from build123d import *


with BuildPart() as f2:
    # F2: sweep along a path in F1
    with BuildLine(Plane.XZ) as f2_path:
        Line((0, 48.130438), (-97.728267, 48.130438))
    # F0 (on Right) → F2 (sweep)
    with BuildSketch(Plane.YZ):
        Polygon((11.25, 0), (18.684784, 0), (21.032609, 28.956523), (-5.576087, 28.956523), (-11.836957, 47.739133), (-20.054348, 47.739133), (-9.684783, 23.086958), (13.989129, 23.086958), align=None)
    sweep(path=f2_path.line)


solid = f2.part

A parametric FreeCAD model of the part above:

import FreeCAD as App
import Part
import Sketcher

V = App.Vector

doc = App.newDocument("Part")
body = doc.addObject("PartDesign::Body", "Body")

sketch1 = body.newObject("Sketcher::SketchObject", "Sketch")
sketch1.AttachmentSupport = (doc.getObject("YZ_Plane"), [""])
sketch1.MapMode = "FlatFace"
sketch1.addGeometry(Part.LineSegment(V(11, 0, 0), V(19, 0, 0)), False)
sketch1.addGeometry(Part.LineSegment(V(19, 0, 0), V(21, 29, 0)), False)
sketch1.addGeometry(Part.LineSegment(V(21, 29, 0), V(-6, 29, 0)), False)
sketch1.addGeometry(Part.LineSegment(V(-6, 29, 0), V(-12, 48, 0)), False)
sketch1.addGeometry(Part.LineSegment(V(-12, 48, 0), V(-20, 48, 0)), False)
sketch1.addGeometry(Part.LineSegment(V(-20, 48, 0), V(-10, 23, 0)), False)
sketch1.addGeometry(Part.LineSegment(V(-10, 23, 0), V(14, 23, 0)), False)
sketch1.addGeometry(Part.LineSegment(V(14, 23, 0), V(11, 0, 0)), False)
sketch1.addConstraint(Sketcher.Constraint("Coincident", 0, 2, 1, 1))
sketch1.addConstraint(Sketcher.Constraint("Coincident", 1, 2, 2, 1))
sketch1.addConstraint(Sketcher.Constraint("Coincident", 2, 2, 3, 1))
sketch1.addConstraint(Sketcher.Constraint("Coincident", 3, 2, 4, 1))
sketch1.addConstraint(Sketcher.Constraint("Coincident", 4, 2, 5, 1))
sketch1.addConstraint(Sketcher.Constraint("Coincident", 5, 2, 6, 1))
sketch1.addConstraint(Sketcher.Constraint("Coincident", 6, 2, 7, 1))
sketch1.addConstraint(Sketcher.Constraint("Coincident", 7, 2, 0, 1))
sketch1.addConstraint(Sketcher.Constraint("Horizontal", 0))
sketch1.addConstraint(Sketcher.Constraint("Horizontal", 2))
sketch1.addConstraint(Sketcher.Constraint("Horizontal", 4))
sketch1.addConstraint(Sketcher.Constraint("Horizontal", 6))
sketch1.addConstraint(Sketcher.Constraint("PointOnObject", 0, 2, -1))
sketch1.addConstraint(Sketcher.Constraint("DistanceX", -1, 1, 7, 2, 11.25))
sketch1.addConstraint(Sketcher.Constraint("Distance", 5, 26.744301))
sketch1.addConstraint(Sketcher.Constraint("DistanceX", 4, 2, 4, 1, 8.217391))
sketch1.addConstraint(Sketcher.Constraint("Distance", 1, 29.051549))
sketch1.addConstraint(Sketcher.Constraint("Distance", 3, 19.798609))
sketch1.addConstraint(Sketcher.Constraint("Distance", 7, 23.248881))
sketch1.addConstraint(Sketcher.Constraint("DistanceX", 0, 1, 0, 2, 7.434784))
sketch1.addConstraint(Sketcher.Constraint("DistanceX", 2, 2, 2, 1, 26.608696))
sketch1.addConstraint(Sketcher.Constraint("DistanceX", 6, 1, 6, 2, 23.673912))
sketch1.addConstraint(Sketcher.Constraint("DistanceX", -1, 1, 1, 2, 21.032609))
sketch1.addConstraint(Sketcher.Constraint("DistanceX", 4, 2, -1, 1, 20.054348))

sketch2 = body.newObject("Sketcher::SketchObject", "Sketch001")
sketch2.AttachmentSupport = (doc.getObject("XY_Plane"), [""])
sketch2.MapMode = "FlatFace"
sketch2.AttachmentOffset = App.Placement(V(0, 0, 48.130438), App.Rotation())
sketch2.addGeometry(Part.LineSegment(V(0, 0, 0), V(-98, 0, 0)), False)
sketch2.addConstraint(Sketcher.Constraint("Horizontal", 0))
sketch2.addConstraint(Sketcher.Constraint("Coincident", 0, 1, -1, 1))
sketch2.addConstraint(Sketcher.Constraint("DistanceX", 0, 2, 0, 1, 97.728267))
doc.recompute()

additivepipe = body.newObject("PartDesign::AdditivePipe", "AdditivePipe")
additivepipe.Profile = sketch1
additivepipe.Spine = (sketch2, ["Edge1"])

doc.recompute()
